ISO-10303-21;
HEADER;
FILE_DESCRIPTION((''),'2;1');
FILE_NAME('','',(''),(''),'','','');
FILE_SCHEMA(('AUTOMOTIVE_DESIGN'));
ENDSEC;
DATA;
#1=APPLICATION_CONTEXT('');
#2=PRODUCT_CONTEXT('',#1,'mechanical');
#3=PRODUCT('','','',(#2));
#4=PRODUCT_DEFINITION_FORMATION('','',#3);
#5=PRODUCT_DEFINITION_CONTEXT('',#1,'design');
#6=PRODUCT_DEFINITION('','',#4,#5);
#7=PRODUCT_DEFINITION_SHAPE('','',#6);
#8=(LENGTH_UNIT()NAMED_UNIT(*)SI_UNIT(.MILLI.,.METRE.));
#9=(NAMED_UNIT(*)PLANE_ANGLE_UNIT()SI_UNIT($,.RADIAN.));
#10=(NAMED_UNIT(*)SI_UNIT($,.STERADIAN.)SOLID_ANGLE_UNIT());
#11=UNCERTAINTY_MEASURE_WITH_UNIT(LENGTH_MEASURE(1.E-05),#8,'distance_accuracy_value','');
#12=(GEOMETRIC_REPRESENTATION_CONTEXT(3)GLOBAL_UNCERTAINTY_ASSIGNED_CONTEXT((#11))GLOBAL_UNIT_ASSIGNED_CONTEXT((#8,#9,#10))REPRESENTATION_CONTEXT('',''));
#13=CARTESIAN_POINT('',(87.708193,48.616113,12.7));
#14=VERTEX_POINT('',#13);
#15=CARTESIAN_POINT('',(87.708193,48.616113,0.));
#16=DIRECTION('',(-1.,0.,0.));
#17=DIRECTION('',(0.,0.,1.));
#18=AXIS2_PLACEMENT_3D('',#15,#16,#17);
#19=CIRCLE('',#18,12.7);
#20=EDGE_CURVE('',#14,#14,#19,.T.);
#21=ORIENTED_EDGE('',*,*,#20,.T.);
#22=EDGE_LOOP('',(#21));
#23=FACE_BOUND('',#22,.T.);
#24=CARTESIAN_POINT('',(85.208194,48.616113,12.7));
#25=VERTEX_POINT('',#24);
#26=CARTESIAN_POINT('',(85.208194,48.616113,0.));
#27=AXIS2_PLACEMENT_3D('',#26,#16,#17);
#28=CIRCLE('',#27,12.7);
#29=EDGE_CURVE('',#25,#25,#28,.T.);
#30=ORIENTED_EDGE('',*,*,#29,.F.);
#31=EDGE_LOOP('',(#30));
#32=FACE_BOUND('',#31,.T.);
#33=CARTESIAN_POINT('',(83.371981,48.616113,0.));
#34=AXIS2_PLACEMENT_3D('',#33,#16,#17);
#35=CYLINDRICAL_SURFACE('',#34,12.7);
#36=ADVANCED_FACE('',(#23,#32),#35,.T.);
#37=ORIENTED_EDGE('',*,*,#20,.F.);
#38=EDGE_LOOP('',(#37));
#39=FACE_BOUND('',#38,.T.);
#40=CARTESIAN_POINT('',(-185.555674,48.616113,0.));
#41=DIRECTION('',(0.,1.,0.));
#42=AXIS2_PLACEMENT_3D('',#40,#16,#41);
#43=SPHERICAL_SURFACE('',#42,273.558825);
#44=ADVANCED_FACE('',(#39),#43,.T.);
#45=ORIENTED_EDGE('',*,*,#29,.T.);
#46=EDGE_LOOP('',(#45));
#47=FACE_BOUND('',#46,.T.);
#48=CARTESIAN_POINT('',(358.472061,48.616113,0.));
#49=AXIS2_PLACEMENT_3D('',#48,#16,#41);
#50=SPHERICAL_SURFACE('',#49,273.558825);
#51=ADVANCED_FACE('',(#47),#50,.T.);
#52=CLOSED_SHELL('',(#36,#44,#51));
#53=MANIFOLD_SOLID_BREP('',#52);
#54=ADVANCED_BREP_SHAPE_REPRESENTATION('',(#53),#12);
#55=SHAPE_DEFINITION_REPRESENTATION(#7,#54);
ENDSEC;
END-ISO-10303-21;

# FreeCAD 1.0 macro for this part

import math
import FreeCAD as App
import Part
import Sketcher

V = App.Vector
Q = App.Units.Quantity

doc = App.newDocument("Part")
body = doc.addObject("PartDesign::Body", "Body")

# Sketch on XY plane
sketch1 = doc.addObject("Sketcher::SketchObject", "Sketch")
body.addObject(sketch1)
sketch1.AttachmentSupport = (doc.XY_Plane, [""])
sketch1.MapMode = "FlatFace"
sketch1.addGeometry([
    Part.LineSegment(V(87.708193, 61.316113, 0), V(85.208194, 61.316113, 0)),
    Part.ArcOfCircle(Part.Circle(V(358.472063, 48.616113, 0), V(0, 0, 1), 273.558827), math.radians(177.33908), math.radians(180)),
    Part.LineSegment(V(84.913236, 48.616113, 0), V(88.003152, 48.616113, 0)),
    Part.ArcOfCircle(Part.Circle(V(-185.555675, 48.616113, 0), V(0, 0, 1), 273.558827), math.radians(0), math.radians(2.66092)),
], False)
sketch1.addGeometry(Part.LineSegment(V(-185.555675, 48.616113, 0), V(358.472063, 48.616113, 0)), True)  # axis
sketch1.addConstraint([
    Sketcher.Constraint("Coincident", 0, 2, 1, 1),
    Sketcher.Constraint("Coincident", 1, 2, 2, 1),
    Sketcher.Constraint("Coincident", 2, 2, 3, 1),
    Sketcher.Constraint("Coincident", 3, 2, 0, 1),
    Sketcher.Constraint("Horizontal", 0),
    Sketcher.Constraint("Horizontal", 2),
    Sketcher.Constraint("Horizontal", 4),
    Sketcher.Constraint("Coincident", 4, 1, 3, 3),
    Sketcher.Constraint("Coincident", 4, 2, 1, 3),
    Sketcher.Constraint("Equal", 1, 3),
    Sketcher.Constraint("Horizontal", 3, 3, 1, 2),
    Sketcher.Constraint("DistanceX", 0, 2, 0, 1, Q("2.499999 mm")),
    Sketcher.Constraint("DistanceY", 3, 3, 0, 2, Q("12.7 mm")),
    Sketcher.Constraint("Radius", 1, Q("273.558827 mm")),
    Sketcher.Constraint("DistanceX", -1, 1, 2, 2, Q("88.003152 mm")),
    Sketcher.Constraint("DistanceY", -1, 1, 1, 3, Q("48.616113 mm")),
])
revolution = doc.addObject("PartDesign::Revolution", "Revolution")
body.addObject(revolution)
revolution.Profile = sketch1
revolution.ReferenceAxis = (sketch1, ["Axis0"])
revolution.Angle = 360

doc.recompute()
